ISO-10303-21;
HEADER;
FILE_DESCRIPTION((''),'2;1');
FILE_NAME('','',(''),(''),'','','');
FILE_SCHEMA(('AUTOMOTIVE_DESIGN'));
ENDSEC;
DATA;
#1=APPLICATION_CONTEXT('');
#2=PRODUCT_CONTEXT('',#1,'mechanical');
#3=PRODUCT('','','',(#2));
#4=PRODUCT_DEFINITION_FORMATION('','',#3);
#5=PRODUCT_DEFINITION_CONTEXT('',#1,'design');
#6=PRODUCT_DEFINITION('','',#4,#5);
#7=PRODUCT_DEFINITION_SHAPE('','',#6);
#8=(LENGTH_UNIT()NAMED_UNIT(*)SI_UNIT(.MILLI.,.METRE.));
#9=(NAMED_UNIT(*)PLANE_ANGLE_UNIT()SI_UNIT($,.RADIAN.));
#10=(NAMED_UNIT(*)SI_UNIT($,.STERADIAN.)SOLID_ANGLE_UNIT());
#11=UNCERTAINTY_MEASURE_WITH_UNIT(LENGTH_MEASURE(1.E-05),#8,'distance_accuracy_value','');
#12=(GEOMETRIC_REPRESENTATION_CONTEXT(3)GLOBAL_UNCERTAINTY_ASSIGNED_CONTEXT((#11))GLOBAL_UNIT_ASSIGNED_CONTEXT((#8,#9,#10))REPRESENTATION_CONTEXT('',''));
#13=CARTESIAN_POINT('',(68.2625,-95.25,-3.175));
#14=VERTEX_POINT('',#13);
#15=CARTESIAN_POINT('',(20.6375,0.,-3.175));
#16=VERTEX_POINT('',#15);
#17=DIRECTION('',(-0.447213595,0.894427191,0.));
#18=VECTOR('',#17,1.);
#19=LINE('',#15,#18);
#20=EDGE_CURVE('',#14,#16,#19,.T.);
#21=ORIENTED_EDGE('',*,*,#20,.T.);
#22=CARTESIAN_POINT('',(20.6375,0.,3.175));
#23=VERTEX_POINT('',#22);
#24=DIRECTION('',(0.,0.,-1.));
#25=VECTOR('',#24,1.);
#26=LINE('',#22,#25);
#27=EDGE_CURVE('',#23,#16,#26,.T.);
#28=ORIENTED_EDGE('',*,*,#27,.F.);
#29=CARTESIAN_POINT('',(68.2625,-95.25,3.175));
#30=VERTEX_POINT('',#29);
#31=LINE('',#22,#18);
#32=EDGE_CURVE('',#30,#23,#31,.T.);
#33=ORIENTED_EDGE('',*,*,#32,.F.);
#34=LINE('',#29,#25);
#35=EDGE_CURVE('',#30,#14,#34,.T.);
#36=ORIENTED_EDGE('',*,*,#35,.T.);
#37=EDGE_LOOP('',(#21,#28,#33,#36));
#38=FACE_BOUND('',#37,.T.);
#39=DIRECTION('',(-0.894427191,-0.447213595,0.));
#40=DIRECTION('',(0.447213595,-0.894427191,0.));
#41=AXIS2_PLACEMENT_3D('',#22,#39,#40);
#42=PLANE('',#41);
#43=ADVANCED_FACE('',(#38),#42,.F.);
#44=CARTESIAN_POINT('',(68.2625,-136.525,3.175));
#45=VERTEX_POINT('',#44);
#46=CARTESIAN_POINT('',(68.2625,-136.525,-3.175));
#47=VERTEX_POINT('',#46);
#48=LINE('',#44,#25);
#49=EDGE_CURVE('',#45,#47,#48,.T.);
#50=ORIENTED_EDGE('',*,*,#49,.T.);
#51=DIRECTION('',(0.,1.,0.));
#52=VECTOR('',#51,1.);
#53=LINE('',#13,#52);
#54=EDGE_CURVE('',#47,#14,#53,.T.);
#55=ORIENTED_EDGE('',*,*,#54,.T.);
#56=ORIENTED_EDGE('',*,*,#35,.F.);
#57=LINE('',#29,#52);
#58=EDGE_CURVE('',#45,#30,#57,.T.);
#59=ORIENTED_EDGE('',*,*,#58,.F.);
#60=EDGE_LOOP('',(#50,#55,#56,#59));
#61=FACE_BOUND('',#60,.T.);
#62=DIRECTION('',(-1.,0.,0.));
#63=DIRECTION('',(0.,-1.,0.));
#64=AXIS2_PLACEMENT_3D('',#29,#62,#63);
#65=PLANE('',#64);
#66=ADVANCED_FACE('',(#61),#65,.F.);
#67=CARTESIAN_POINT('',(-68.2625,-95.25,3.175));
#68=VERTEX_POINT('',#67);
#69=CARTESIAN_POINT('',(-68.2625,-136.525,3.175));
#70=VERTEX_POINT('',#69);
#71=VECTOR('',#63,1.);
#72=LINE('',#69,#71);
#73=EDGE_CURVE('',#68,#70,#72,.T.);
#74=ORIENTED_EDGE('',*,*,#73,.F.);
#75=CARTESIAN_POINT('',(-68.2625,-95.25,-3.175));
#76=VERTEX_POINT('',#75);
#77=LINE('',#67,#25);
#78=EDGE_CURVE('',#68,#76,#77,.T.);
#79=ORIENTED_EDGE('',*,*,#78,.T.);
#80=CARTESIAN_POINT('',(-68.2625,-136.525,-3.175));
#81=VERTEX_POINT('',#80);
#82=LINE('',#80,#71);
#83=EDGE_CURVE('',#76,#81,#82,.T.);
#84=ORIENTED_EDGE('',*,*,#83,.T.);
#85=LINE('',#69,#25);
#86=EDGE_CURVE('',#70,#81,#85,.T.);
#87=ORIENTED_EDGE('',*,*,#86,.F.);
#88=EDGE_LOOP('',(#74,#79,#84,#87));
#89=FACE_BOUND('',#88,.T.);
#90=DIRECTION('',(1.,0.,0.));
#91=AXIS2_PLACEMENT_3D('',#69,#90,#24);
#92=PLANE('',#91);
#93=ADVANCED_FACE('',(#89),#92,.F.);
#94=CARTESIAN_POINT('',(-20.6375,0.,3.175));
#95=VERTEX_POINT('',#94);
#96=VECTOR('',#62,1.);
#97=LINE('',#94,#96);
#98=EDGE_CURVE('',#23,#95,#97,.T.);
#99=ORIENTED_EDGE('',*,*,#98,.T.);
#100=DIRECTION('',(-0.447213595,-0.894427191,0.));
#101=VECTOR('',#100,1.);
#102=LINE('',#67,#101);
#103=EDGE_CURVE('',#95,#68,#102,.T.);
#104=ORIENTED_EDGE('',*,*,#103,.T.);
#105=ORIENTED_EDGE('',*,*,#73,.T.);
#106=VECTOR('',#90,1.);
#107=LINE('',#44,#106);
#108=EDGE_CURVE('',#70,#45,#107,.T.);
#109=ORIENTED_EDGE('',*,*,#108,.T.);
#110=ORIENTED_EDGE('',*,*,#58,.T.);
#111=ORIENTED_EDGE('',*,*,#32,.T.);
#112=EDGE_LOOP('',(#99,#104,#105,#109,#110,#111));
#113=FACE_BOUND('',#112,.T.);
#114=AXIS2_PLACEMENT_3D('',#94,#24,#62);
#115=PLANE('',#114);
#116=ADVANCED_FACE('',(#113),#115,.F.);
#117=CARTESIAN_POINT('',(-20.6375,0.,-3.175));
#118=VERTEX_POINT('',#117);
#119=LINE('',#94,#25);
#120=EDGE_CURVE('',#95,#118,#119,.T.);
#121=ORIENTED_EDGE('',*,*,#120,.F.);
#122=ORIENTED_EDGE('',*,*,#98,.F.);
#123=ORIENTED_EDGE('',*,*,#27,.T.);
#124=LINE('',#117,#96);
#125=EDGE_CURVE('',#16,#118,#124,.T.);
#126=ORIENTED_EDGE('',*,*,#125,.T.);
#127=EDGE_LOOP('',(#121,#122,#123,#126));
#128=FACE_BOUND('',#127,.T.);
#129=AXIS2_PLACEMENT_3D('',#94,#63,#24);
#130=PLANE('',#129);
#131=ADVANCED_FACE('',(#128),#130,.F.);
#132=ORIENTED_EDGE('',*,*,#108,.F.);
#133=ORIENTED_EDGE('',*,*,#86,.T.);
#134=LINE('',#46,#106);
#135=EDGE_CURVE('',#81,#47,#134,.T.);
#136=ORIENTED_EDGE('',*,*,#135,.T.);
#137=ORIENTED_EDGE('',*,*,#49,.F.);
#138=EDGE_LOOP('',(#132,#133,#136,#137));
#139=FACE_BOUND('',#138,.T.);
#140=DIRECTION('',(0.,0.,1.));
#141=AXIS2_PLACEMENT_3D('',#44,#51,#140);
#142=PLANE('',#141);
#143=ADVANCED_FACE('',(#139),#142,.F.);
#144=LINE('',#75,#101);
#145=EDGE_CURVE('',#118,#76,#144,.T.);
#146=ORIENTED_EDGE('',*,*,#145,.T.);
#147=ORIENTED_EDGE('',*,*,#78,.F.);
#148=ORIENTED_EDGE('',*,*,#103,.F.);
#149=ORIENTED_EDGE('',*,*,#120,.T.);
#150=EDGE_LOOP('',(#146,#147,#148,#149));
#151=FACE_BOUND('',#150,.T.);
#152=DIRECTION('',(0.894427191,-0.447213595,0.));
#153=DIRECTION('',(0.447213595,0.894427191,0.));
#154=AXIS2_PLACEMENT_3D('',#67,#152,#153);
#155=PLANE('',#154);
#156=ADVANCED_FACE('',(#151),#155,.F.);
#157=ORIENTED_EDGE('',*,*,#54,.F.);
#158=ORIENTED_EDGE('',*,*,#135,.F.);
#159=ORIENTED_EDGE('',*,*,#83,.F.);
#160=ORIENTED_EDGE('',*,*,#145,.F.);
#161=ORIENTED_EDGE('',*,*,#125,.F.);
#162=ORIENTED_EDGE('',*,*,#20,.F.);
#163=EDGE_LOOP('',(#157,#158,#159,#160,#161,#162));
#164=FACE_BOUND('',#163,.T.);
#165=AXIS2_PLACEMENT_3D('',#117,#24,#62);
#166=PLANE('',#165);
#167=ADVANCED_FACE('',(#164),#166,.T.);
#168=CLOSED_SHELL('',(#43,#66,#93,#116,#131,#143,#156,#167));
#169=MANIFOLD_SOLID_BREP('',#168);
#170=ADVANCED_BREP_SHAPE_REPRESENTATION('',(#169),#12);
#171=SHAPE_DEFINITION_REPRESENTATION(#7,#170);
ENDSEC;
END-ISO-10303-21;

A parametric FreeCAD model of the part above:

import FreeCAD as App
import Part
import Sketcher

V = App.Vector
Q = App.Units.Quantity


def add_polygon(sketch, points):
    """Adds a closed chain of lines whose ends are joined by coincident constraints."""
    first, n = sketch.GeometryCount, len(points)
    for a, b in zip(points, points[1:] + points[:1]):
        sketch.addGeometry(Part.LineSegment(App.Vector(*a, 0), App.Vector(*b, 0)), False)
    for i in range(n):
        sketch.addConstraint(Sketcher.Constraint("Coincident", first + i, 2, first + (i + 1) % n, 1))

doc = App.newDocument("Part")
body = doc.addObject("PartDesign::Body", "Body")

# Sketch on XY plane
sketch1 = body.newObject("Sketcher::SketchObject", "Sketch")
sketch1.AttachmentSupport = (doc.getObject("XY_Plane"), [""])
sketch1.MapMode = "FlatFace"
add_polygon(sketch1, [(21, 0), (-21, 0), (-68, -95), (-68, -137), (68, -137), (68, -95)])  # lines 0-5
sketch1.addGeometry(Part.Circle(V(48, -116, 0), V(0, 0, 1), 7), False)  # 6
sketch1.addGeometry(Part.Circle(V(0, -116, 0), V(0, 0, 1), 7), False)  # 7
sketch1.addGeometry(Part.Circle(V(-48, -116, 0), V(0, 0, 1), 7), False)  # 8
sketch1.addGeometry(Part.Circle(V(0, -68, 0), V(0, 0, 1), 7), False)  # 9
sketch1.addGeometry(Part.Circle(V(0, -21, 0), V(0, 0, 1), 7), False)  # 10
sketch1.addConstraint(Sketcher.Constraint("Horizontal", 0))
sketch1.addConstraint(Sketcher.Constraint("Vertical", 2))
sketch1.addConstraint(Sketcher.Constraint("Horizontal", 3))
sketch1.addConstraint(Sketcher.Constraint("Vertical", 4))
sketch1.addConstraint(Sketcher.Constraint("Equal", 6, 7))
sketch1.addConstraint(Sketcher.Constraint("Equal", 7, 8))
sketch1.addConstraint(Sketcher.Constraint("Equal", 8, 9))
sketch1.addConstraint(Sketcher.Constraint("Equal", 9, 10))
sketch1.addConstraint(Sketcher.Constraint("Symmetric", 0, 2, 5, 2, -1, 1))
sketch1.addConstraint(Sketcher.Constraint("Symmetric", 6, 3, 8, 3, -2))
sketch1.addConstraint(Sketcher.Constraint("Symmetric", 1, 2, 4, 2, -2))
sketch1.addConstraint(Sketcher.Constraint("PointOnObject", 7, 3, -2))
sketch1.addConstraint(Sketcher.Constraint("PointOnObject", 9, 3, -2))
sketch1.addConstraint(Sketcher.Constraint("PointOnObject", 10, 3, -2))
sketch1.addConstraint(Sketcher.Constraint("Horizontal", 6, 3, 7, 3))
sketch1.addConstraint(Sketcher.Constraint("Equal", 0, 2))
sketch1.addConstraint(Sketcher.Constraint("Diameter", 6, Q("0.5625 in")))
sketch1.addConstraint(Sketcher.Constraint("DistanceX", 0, 2, 0, 1, Q("1.625 in")))
sketch1.addConstraint(Sketcher.Constraint("DistanceX", 3, 1, 3, 2, Q("5.375 in")))
sketch1.addConstraint(Sketcher.Constraint("DistanceY", 1, 2, -1, 1, Q("3.75 in")))
sketch1.addConstraint(Sketcher.Constraint("DistanceX", 8, 3, 6, 3, Q("3.75 in")))
sketch1.addConstraint(Sketcher.Constraint("DistanceY", 7, 3, 10, 3, Q("3.75 in")))
sketch1.addConstraint(Sketcher.Constraint("DistanceY", 6, 3, -1, 1, Q("4.5625 in")))
sketch1.addConstraint(Sketcher.Constraint("DistanceY", 9, 3, -1, 1, Q("2.6875 in")))
pad1 = body.newObject("PartDesign::Pad", "Pad")
pad1.Profile = sketch1
pad1.Length = Q("0.25 in")
pad1.Midplane = True

# Sketch on XY plane
sketch2 = body.newObject("Sketcher::SketchObject", "Sketch001")
sketch2.AttachmentSupport = (doc.getObject("XY_Plane"), [""])
sketch2.MapMode = "FlatFace"
sketch2.AttachmentOffset = App.Placement(V(0, 0, -0.125 * 25.4), App.Rotation())
sketch2.addGeometry(Part.Circle(V(0, -68, 0), V(0, 0, 1), 7), False)
sketch2.addGeometry(Part.Circle(V(0, -21, 0), V(0, 0, 1), 7), False)
sketch2.addGeometry(Part.Circle(V(-48, -116, 0), V(0, 0, 1), 7), False)
sketch2.addGeometry(Part.Circle(V(0, -116, 0), V(0, 0, 1), 7), False)
sketch2.addGeometry(Part.Circle(V(48, -116, 0), V(0, 0, 1), 7), False)
sketch2.addConstraint(Sketcher.Constraint("Equal", 0, 1))
sketch2.addConstraint(Sketcher.Constraint("Equal", 1, 2))
sketch2.addConstraint(Sketcher.Constraint("Equal", 2, 3))
sketch2.addConstraint(Sketcher.Constraint("Equal", 3, 4))
sketch2.addConstraint(Sketcher.Constraint("Symmetric", 2, 3, 4, 3, -2))
sketch2.addConstraint(Sketcher.Constraint("PointOnObject", 0, 3, -2))
sketch2.addConstraint(Sketcher.Constraint("PointOnObject", 1, 3, -2))
sketch2.addConstraint(Sketcher.Constraint("PointOnObject", 3, 3, -2))
sketch2.addConstraint(Sketcher.Constraint("Horizontal", 2, 3, 3, 3))
sketch2.addConstraint(Sketcher.Constraint("Diameter", 0, Q("0.5625 in")))
sketch2.addConstraint(Sketcher.Constraint("DistanceY", 2, 3, 1, 3, Q("3.75 in")))
sketch2.addConstraint(Sketcher.Constraint("DistanceX", 2, 3, 4, 3, Q("3.75 in")))
sketch2.addConstraint(Sketcher.Constraint("DistanceY", 0, 3, -1, 1, Q("2.6875 in")))
sketch2.addConstraint(Sketcher.Constraint("DistanceY", 1, 3, -1, 1, Q("0.8125 in")))
pad2 = body.newObject("PartDesign::Pad", "Pad001")
pad2.Profile = sketch2
pad2.Length = Q("0.25 in")

doc.recompute()
